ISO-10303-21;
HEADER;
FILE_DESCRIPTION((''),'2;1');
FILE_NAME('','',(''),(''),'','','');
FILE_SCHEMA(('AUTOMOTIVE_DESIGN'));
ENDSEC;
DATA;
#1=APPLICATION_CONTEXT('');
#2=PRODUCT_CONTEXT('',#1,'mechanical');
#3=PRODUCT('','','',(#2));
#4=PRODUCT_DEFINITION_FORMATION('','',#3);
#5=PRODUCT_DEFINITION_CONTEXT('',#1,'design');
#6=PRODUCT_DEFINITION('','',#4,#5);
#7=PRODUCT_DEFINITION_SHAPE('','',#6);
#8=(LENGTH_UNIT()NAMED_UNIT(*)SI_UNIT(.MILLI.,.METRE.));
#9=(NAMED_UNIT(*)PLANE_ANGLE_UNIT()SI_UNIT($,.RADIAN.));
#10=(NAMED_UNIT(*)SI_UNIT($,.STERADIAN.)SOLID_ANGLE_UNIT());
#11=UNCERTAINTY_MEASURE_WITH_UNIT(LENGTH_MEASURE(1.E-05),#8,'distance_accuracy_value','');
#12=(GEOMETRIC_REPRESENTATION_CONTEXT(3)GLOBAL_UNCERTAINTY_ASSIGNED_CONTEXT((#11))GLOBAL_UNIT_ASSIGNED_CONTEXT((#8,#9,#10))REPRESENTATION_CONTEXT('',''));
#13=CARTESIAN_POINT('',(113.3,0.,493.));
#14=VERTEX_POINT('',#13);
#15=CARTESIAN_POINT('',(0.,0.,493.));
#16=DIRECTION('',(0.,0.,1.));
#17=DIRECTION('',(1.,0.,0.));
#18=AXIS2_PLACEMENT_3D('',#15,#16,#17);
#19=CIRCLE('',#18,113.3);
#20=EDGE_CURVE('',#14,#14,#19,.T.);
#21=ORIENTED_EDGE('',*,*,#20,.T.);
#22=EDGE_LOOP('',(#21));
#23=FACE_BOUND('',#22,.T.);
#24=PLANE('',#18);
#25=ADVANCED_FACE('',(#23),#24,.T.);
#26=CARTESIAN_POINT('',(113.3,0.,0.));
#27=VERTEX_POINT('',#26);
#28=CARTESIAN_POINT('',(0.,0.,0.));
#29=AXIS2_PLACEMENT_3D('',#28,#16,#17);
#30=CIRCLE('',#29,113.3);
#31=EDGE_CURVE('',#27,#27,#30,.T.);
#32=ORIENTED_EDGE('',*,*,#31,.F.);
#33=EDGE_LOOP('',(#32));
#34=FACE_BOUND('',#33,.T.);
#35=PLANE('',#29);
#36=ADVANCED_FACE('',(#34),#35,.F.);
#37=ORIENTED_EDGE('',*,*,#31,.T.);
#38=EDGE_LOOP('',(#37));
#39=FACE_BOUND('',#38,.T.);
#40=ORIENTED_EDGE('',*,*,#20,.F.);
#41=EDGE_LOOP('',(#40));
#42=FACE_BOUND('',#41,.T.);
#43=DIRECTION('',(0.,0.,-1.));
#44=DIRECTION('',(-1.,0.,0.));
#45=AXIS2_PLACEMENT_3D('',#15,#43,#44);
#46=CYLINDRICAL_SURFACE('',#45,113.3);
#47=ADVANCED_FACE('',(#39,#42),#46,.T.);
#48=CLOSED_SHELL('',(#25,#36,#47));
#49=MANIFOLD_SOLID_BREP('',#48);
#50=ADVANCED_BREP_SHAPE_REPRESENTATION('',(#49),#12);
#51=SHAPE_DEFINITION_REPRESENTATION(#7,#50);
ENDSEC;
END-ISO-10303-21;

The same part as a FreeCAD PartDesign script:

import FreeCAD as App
import Part
import Sketcher
from FreeCAD import Vector
Q = App.Units.Quantity

doc = App.newDocument("Part")
body = doc.addObject("PartDesign::Body", "Body")

sketch1 = body.newObject("Sketcher::SketchObject", "Sketch")
sketch1.AttachmentSupport = (doc.getObject("XY_Plane"), [""])
sketch1.MapMode = "FlatFace"
sketch1.addGeometry(Part.Circle(Vector(0, 0, 0), Vector(0, 0, 1), 113), False)
sketch1.addConstraint([
    Sketcher.Constraint("Coincident", 0, 3, -1, 1),
    Sketcher.Constraint("Diameter", 0, Q("226.6 mm")),
])
pad1 = body.newObject("PartDesign::Pad", "Pad")
pad1.Profile = sketch1
pad1.Length = 493

doc.recompute()
